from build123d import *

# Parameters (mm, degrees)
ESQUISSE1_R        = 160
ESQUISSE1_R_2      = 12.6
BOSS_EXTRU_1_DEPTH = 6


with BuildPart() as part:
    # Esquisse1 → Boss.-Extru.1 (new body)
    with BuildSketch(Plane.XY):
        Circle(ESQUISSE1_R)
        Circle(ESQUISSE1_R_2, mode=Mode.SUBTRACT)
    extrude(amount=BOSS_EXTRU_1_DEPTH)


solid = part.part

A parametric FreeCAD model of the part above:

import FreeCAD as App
import Part
import Sketcher

V = App.Vector

doc = App.newDocument("Part")
body = doc.addObject("PartDesign::Body", "Body")

sketch1 = body.newObject("Sketcher::SketchObject", "Sketch")
sketch1.AttachmentSupport = (doc.getObject("XY_Plane"), [""])
sketch1.MapMode = "FlatFace"
sketch1.addGeometry(Part.Circle(V(0, 0, 0), V(0, 0, 1), 160), False)
sketch1.addGeometry(Part.Circle(V(0, 0, 0), V(0, 0, 1), 12.6), False)
sketch1.addConstraint(Sketcher.Constraint("Coincident", 0, 3, -1, 1))
sketch1.addConstraint(Sketcher.Constraint("Coincident", 1, 3, -1, 1))
sketch1.addConstraint(Sketcher.Constraint("Diameter", 0, 320.0))
sketch1.addConstraint(Sketcher.Constraint("Diameter", 1, 25.2))
pad1 = body.newObject("PartDesign::Pad", "Pad")
pad1.Profile = sketch1
pad1.Length = 6

doc.recompute()
